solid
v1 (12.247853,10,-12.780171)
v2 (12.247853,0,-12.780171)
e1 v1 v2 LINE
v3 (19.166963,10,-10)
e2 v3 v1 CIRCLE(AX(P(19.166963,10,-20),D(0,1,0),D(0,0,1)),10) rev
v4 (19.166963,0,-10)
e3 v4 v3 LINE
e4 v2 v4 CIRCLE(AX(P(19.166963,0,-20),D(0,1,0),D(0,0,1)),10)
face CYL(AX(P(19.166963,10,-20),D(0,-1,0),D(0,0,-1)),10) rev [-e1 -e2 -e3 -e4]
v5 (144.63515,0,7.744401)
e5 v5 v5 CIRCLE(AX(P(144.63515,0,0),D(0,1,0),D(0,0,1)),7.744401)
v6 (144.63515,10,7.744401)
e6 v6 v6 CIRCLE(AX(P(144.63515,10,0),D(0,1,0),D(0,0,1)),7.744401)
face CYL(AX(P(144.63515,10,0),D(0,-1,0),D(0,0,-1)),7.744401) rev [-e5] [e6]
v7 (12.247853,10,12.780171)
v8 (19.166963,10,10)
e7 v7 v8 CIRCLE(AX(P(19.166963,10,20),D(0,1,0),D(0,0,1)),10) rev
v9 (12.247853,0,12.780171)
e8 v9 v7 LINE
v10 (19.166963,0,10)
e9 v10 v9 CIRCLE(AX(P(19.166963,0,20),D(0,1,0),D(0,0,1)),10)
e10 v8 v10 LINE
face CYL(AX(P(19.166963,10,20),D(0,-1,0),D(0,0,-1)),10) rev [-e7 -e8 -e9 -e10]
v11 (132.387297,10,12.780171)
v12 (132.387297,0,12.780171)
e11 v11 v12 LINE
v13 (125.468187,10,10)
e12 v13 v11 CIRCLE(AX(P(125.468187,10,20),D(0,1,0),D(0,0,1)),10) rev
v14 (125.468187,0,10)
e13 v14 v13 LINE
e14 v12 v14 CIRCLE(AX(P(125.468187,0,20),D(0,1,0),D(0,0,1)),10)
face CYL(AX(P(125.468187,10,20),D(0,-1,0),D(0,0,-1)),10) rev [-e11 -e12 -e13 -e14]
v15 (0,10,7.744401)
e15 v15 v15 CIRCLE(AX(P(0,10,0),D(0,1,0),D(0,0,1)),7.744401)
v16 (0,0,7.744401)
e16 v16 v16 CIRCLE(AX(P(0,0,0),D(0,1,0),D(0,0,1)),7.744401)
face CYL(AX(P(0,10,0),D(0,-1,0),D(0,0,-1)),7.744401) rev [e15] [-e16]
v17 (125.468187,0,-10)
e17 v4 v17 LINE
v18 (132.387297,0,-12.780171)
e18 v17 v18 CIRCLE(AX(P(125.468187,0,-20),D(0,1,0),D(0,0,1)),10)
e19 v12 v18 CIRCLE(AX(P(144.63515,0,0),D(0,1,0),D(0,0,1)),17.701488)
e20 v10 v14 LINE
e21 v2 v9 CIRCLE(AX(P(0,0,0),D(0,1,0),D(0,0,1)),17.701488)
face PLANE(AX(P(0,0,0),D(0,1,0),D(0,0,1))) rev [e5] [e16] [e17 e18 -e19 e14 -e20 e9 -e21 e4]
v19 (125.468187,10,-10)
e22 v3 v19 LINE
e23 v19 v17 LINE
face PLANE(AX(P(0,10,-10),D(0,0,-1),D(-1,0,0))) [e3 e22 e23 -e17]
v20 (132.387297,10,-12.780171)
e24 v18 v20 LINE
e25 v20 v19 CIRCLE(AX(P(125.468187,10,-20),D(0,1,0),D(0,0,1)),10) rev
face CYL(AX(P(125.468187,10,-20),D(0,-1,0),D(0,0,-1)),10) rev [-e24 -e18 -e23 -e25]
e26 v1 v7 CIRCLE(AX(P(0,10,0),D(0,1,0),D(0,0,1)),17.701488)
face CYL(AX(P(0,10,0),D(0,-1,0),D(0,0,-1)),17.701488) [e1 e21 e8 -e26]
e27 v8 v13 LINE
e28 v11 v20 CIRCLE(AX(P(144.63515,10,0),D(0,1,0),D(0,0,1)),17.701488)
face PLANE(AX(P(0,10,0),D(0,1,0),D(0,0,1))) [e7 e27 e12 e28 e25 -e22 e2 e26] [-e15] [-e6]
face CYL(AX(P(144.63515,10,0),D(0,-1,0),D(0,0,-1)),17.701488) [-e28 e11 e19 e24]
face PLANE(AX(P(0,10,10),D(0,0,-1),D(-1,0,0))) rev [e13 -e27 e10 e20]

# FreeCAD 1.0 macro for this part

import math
import FreeCAD as App
import Part
import Sketcher

V = App.Vector
Q = App.Units.Quantity


def edges_at(feature, points):
    """Names of the edges that pass closest to the given points."""
    edges = feature.Shape.Edges
    near = lambda p: min(range(len(edges)), key=lambda i: edges[i].distToShape(Part.Vertex(*p))[0])
    return sorted({f"Edge{near(p) + 1}" for p in points})

doc = App.newDocument("Part")
params = doc.addObject("Spreadsheet::Sheet", "Params")
for row, (alias, value) in enumerate([
    ("pad1_length", "10 mm"),
    ("fillet_radius", "10 mm"),
], start=1):
    params.set(f"A{row}", alias)
    params.set(f"B{row}", "=" + value)
    params.setAlias(f"B{row}", alias)

body = doc.addObject("PartDesign::Body", "Body")

# Sketch on XZ plane
sketch1 = body.newObject("Sketcher::SketchObject", "Sketch")
sketch1.AttachmentSupport = (doc.getObject("XZ_Plane"), [""])
sketch1.MapMode = "FlatFace"
sketch1.addGeometry([
    Part.ArcOfCircle(Part.Circle(V(0, 0, 0), V(0, 0, 1), 18), math.radians(34), math.radians(326)),  # 0
    Part.LineSegment(V(15, 10, 0), V(130, 10, 0)),  # 1
    Part.ArcOfCircle(Part.Circle(V(145, 0, 0), V(0, 0, 1), 18), math.radians(-146), math.radians(146)),  # 2
    Part.LineSegment(V(130, -10, 0), V(15, -10, 0)),  # 3
    Part.Circle(V(0, 0, 0), V(0, 0, 1), 8),  # 4
    Part.Circle(V(145, 0, 0), V(0, 0, 1), 8),  # 5
], False)
sketch1.addConstraint([
    Sketcher.Constraint("Coincident", 0, 1, 1, 1),
    Sketcher.Constraint("Coincident", 1, 2, 2, 2),
    Sketcher.Constraint("Coincident", 2, 1, 3, 1),
    Sketcher.Constraint("Coincident", 3, 2, 0, 2),
    Sketcher.Constraint("Horizontal", 1),
    Sketcher.Constraint("Horizontal", 3),
    Sketcher.Constraint("Coincident", 0, 3, -1, 1),
    Sketcher.Constraint("Coincident", 4, 3, -1, 1),
    Sketcher.Constraint("Coincident", 5, 3, 2, 3),
    Sketcher.Constraint("Equal", 0, 2),
    Sketcher.Constraint("Equal", 4, 5),
    Sketcher.Constraint("Symmetric", 1, 2, 2, 1, -1),
    Sketcher.Constraint("DistanceY", -1, 1, 0, 1, Q("10 mm")),
    Sketcher.Constraint("Radius", 0, Q("17.701488 mm")),
    Sketcher.Constraint("Diameter", 4, Q("15.488802 mm")),
    Sketcher.Constraint("DistanceX", 1, 1, 1, 2, Q("115.422639 mm")),
])
pad1 = body.newObject("PartDesign::Pad", "Pad")
pad1.Profile = sketch1
pad1.setExpression("Length", "Params.pad1_length")
pad1.Reversed = True
doc.recompute()

fillet = body.newObject("PartDesign::Fillet", "Fillet")
fillet.Base = (pad1, edges_at(pad1, [
    (130.029, 5, -10),
    (130.029, 5, 10),
    (14.606, 5, 10),
    (14.606, 5, -10),
]))
fillet.setExpression("Radius", "Params.fillet_radius")

doc.recompute()
